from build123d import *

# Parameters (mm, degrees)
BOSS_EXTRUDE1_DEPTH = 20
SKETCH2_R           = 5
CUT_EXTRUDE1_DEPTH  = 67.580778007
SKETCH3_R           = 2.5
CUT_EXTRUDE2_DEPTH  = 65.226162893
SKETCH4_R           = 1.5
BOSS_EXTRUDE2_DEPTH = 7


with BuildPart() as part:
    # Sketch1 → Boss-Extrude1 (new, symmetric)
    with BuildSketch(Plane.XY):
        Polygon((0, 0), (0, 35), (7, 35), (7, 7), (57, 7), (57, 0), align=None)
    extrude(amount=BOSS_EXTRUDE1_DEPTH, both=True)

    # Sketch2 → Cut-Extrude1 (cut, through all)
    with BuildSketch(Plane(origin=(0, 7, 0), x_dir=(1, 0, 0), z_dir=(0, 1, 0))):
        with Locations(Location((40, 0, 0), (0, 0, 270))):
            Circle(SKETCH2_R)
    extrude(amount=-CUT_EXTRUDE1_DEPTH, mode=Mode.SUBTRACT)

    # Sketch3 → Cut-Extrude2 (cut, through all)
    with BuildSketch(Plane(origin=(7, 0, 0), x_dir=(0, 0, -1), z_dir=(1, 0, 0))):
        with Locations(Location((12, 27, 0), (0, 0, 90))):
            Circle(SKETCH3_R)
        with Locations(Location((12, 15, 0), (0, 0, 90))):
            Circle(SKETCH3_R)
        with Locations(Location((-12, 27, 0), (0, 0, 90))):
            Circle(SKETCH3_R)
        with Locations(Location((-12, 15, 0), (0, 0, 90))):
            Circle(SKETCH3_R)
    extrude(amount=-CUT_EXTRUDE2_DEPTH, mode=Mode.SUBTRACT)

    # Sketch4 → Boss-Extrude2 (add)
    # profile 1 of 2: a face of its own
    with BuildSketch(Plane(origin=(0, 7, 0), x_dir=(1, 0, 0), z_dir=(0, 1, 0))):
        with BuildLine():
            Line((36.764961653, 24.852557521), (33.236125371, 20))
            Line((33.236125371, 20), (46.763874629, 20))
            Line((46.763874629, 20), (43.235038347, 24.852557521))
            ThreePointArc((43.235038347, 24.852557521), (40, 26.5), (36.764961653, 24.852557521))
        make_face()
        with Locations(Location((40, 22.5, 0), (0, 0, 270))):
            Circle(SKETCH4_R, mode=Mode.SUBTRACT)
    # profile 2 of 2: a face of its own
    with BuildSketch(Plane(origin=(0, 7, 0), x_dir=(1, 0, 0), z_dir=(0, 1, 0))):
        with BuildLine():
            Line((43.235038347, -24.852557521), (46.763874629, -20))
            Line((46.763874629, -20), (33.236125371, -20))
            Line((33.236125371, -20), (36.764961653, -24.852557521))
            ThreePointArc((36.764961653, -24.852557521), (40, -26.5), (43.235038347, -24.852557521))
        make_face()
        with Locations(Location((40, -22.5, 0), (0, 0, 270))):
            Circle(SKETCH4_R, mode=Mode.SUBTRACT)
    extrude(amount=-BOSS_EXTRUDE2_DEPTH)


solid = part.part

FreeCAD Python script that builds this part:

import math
import FreeCAD as App
import Part
import Sketcher

V = App.Vector
Q = App.Units.Quantity


def add_polygon(sketch, points):
    """Adds a closed chain of lines whose ends are joined by coincident constraints."""
    first, n = sketch.GeometryCount, len(points)
    for a, b in zip(points, points[1:] + points[:1]):
        sketch.addGeometry(Part.LineSegment(App.Vector(*a, 0), App.Vector(*b, 0)), False)
    for i in range(n):
        sketch.addConstraint(Sketcher.Constraint("Coincident", first + i, 2, first + (i + 1) % n, 1))

doc = App.newDocument("Part")
params = doc.addObject("Spreadsheet::Sheet", "Params")
for row, (alias, value) in enumerate([
    ("sketch1_width", "57 mm"),
    ("sketch1_width2", "50 mm"),
    ("sketch1_height", "35 mm"),
    ("pad1_length", "40 mm"),
    ("sketch2_diameter", "10 mm"),
    ("sketch3_diameter", "5 mm"),
    ("sketch4_diameter", "3 mm"),
    ("sketch4_radius", "4 mm"),
    ("sketch4_length", "6 mm"),
    ("pad2_length", "7 mm"),
], start=1):
    params.set(f"A{row}", alias)
    params.set(f"B{row}", "=" + value)
    params.setAlias(f"B{row}", alias)

body = doc.addObject("PartDesign::Body", "Body")

sketch1 = doc.addObject("Sketcher::SketchObject", "Sketch")
body.addObject(sketch1)
sketch1.AttachmentSupport = (doc.XY_Plane, [""])
sketch1.MapMode = "FlatFace"
add_polygon(sketch1, [(0, 35), (0, 0), (57, 0), (57, 7), (7, 7), (7, 35)])
sketch1.addConstraint([
    Sketcher.Constraint("Vertical", 0),
    Sketcher.Constraint("Horizontal", 1),
    Sketcher.Constraint("Vertical", 2),
    Sketcher.Constraint("Horizontal", 3),
    Sketcher.Constraint("Vertical", 4),
    Sketcher.Constraint("Horizontal", 5),
    Sketcher.Constraint("Coincident", 0, 2, -1, 1),
    Sketcher.Constraint("Equal", 5, 2),
    Sketcher.Constraint("DistanceX", 1, 1, 1, 2, Q("57 mm")),
    Sketcher.Constraint("DistanceX", 3, 2, 3, 1, Q("50 mm")),
    Sketcher.Constraint("DistanceY", 0, 2, 0, 1, Q("35 mm")),
])
sketch1.setExpression("Constraints[14]", "Params.sketch1_width")
sketch1.setExpression("Constraints[15]", "Params.sketch1_width2")
sketch1.setExpression("Constraints[16]", "Params.sketch1_height")
pad1 = doc.addObject("PartDesign::Pad", "Pad")
body.addObject(pad1)
pad1.Profile = sketch1
pad1.setExpression("Length", "Params.pad1_length")
pad1.Midplane = True

sketch2 = doc.addObject("Sketcher::SketchObject", "Sketch001")
body.addObject(sketch2)
sketch2.AttachmentSupport = (doc.XZ_Plane, [""])
sketch2.MapMode = "FlatFace"
sketch2.AttachmentOffset = App.Placement(V(0, 0, -7), App.Rotation())
sketch2.addGeometry(Part.Circle(V(40, 0, 0), V(0, 0, 1), 5), False)
sketch2.addConstraint([
    Sketcher.Constraint("PointOnObject", 0, 3, -1),
    Sketcher.Constraint("Diameter", 0, Q("10 mm")),
    Sketcher.Constraint("DistanceX", -1, 1, 0, 3, Q("40 mm")),
])
sketch2.setExpression("Constraints[1]", "Params.sketch2_diameter")
pocket1 = doc.addObject("PartDesign::Pocket", "Pocket")
body.addObject(pocket1)
pocket1.Profile = sketch2
pocket1.Type = "ThroughAll"
pocket1.Reversed = True

sketch3 = doc.addObject("Sketcher::SketchObject", "Sketch002")
body.addObject(sketch3)
sketch3.AttachmentSupport = (doc.YZ_Plane, [""])
sketch3.MapMode = "FlatFace"
sketch3.AttachmentOffset = App.Placement(V(0, 0, 7), App.Rotation())
sketch3.addGeometry([
    Part.Circle(V(27, -12, 0), V(0, 0, 1), 2.5),
    Part.Circle(V(15, -12, 0), V(0, 0, 1), 2.5),
    Part.Circle(V(27, 12, 0), V(0, 0, 1), 2.5),
    Part.Circle(V(15, 12, 0), V(0, 0, 1), 2.5),
], False)
sketch3.addConstraint([
    Sketcher.Constraint("Equal", 0, 1),
    Sketcher.Constraint("Equal", 1, 2),
    Sketcher.Constraint("Equal", 2, 3),
    Sketcher.Constraint("Symmetric", 0, 3, 2, 3, -1),
    Sketcher.Constraint("Symmetric", 1, 3, 3, 3, -1),
    Sketcher.Constraint("Horizontal", 0, 3, 1, 3),
    Sketcher.Constraint("Diameter", 0, Q("5 mm")),
    Sketcher.Constraint("DistanceX", -1, 1, 0, 3, Q("27 mm")),
    Sketcher.Constraint("DistanceY", 0, 3, -1, 1, Q("12 mm")),
    Sketcher.Constraint("DistanceX", -1, 1, 1, 3, Q("15 mm")),
])
sketch3.setExpression("Constraints[6]", "Params.sketch3_diameter")
pocket2 = doc.addObject("PartDesign::Pocket", "Pocket001")
body.addObject(pocket2)
pocket2.Profile = sketch3
pocket2.Type = "ThroughAll"

sketch4 = doc.addObject("Sketcher::SketchObject", "Sketch003")
body.addObject(sketch4)
sketch4.AttachmentSupport = (doc.XZ_Plane, [""])
sketch4.MapMode = "FlatFace"
sketch4.AttachmentOffset = App.Placement(V(0, 0, -7), App.Rotation())
sketch4.addGeometry([
    Part.LineSegment(V(36.764962, -24.852558, 0), V(33.236125, -20, 0)),
    Part.LineSegment(V(33.236125, -20, 0), V(46.763875, -20, 0)),
    Part.LineSegment(V(46.763875, -20, 0), V(43.235038, -24.852558, 0)),
    Part.ArcOfCircle(Part.Circle(V(40, -22.5, 0), V(0, 0, 1), 4), math.radians(-143.974916), math.radians(-36.025084)),
    Part.Circle(V(40, -22.5, 0), V(0, 0, 1), 1.5),
    Part.LineSegment(V(43.235038, 24.852558, 0), V(46.763875, 20, 0)),
    Part.LineSegment(V(46.763875, 20, 0), V(33.236125, 20, 0)),
    Part.LineSegment(V(33.236125, 20, 0), V(36.764962, 24.852558, 0)),
    Part.ArcOfCircle(Part.Circle(V(40, 22.5, 0), V(0, 0, 1), 4), math.radians(36.025084), math.radians(143.974916)),
    Part.Circle(V(40, 22.5, 0), V(0, 0, 1), 1.5),
], False)
sketch4.addConstraint([
    Sketcher.Constraint("Coincident", 0, 2, 1, 1),
    Sketcher.Constraint("Coincident", 1, 2, 2, 1),
    Sketcher.Constraint("Tangent", 2, 2, 3, 2),
    Sketcher.Constraint("Tangent", 3, 1, 0, 1),
    Sketcher.Constraint("Coincident", 5, 2, 6, 1),
    Sketcher.Constraint("Coincident", 6, 2, 7, 1),
    Sketcher.Constraint("Tangent", 7, 2, 8, 2),
    Sketcher.Constraint("Tangent", 8, 1, 5, 1),
    Sketcher.Constraint("Horizontal", 1),
    Sketcher.Constraint("Horizontal", 6),
    Sketcher.Constraint("Coincident", 4, 3, 3, 3),
    Sketcher.Constraint("Coincident", 9, 3, 8, 3),
    Sketcher.Constraint("Equal", 3, 8),
    Sketcher.Constraint("Equal", 4, 9),
    Sketcher.Constraint("Symmetric", 3, 3, 8, 3, -1),
    Sketcher.Constraint("Symmetric", 1, 2, 5, 2, -1),
    Sketcher.Constraint("Parallel", 0, 5),
    Sketcher.Constraint("Parallel", 2, 7),
    Sketcher.Constraint("Diameter", 4, Q("3 mm")),
    Sketcher.Constraint("Radius", 3, Q("4 mm")),
    Sketcher.Constraint("Distance", 0, Q("6 mm")),
    Sketcher.Constraint("DistanceX", -1, 1, 3, 3, Q("40 mm")),
    Sketcher.Constraint("DistanceY", 0, 2, -1, 1, Q("20 mm")),
    Sketcher.Constraint("DistanceY", 4, 3, 8, 3, Q("45 mm")),
])
sketch4.setExpression("Constraints[18]", "Params.sketch4_diameter")
sketch4.setExpression("Constraints[19]", "Params.sketch4_radius")
sketch4.setExpression("Constraints[20]", "Params.sketch4_length")
pad2 = doc.addObject("PartDesign::Pad", "Pad001")
body.addObject(pad2)
pad2.Profile = sketch4
pad2.setExpression("Length", "Params.pad2_length")

doc.recompute()
